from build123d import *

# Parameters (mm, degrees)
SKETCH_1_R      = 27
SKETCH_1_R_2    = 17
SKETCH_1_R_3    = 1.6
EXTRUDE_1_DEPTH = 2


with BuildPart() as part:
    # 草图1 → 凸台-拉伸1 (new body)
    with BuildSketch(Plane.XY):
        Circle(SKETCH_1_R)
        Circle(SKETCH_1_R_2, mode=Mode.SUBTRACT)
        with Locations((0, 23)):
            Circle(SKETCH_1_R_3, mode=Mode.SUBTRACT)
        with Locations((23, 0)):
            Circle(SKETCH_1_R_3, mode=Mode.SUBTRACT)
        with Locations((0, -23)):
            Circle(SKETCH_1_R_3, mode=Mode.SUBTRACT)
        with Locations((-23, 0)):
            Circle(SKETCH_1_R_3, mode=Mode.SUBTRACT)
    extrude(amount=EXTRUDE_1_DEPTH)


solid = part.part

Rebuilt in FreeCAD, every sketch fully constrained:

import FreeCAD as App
import Part
import Sketcher
from FreeCAD import Vector
Q = App.Units.Quantity

doc = App.newDocument("Part")
body = doc.addObject("PartDesign::Body", "Body")

# Sketch on XY plane
sketch1 = doc.addObject("Sketcher::SketchObject", "Sketch")
body.addObject(sketch1)
sketch1.AttachmentSupport = (doc.XY_Plane, [""])
sketch1.MapMode = "FlatFace"
sketch1.addGeometry(Part.Circle(Vector(0, 0, 0), Vector(0, 0, 1), 27), False)
sketch1.addGeometry(Part.Circle(Vector(0, -23, 0), Vector(0, 0, 1), 1.6), False)
sketch1.addGeometry(Part.Circle(Vector(-23, 0, 0), Vector(0, 0, 1), 1.6), False)
sketch1.addGeometry(Part.Circle(Vector(0, 0, 0), Vector(0, 0, 1), 17), False)
sketch1.addGeometry(Part.Circle(Vector(23, 0, 0), Vector(0, 0, 1), 1.6), False)
sketch1.addGeometry(Part.Circle(Vector(0, 23, 0), Vector(0, 0, 1), 1.6), False)
sketch1.addConstraint(Sketcher.Constraint("Coincident", 0, 3, -1, 1))
sketch1.addConstraint(Sketcher.Constraint("Coincident", 3, 3, -1, 1))
sketch1.addConstraint(Sketcher.Constraint("Equal", 1, 2))
sketch1.addConstraint(Sketcher.Constraint("Equal", 2, 4))
sketch1.addConstraint(Sketcher.Constraint("Equal", 4, 5))
sketch1.addConstraint(Sketcher.Constraint("Symmetric", 2, 3, 4, 3, -1, 1))
sketch1.addConstraint(Sketcher.Constraint("Symmetric", 1, 3, 5, 3, -1, 1))
sketch1.addConstraint(Sketcher.Constraint("PointOnObject", 1, 3, -2))
sketch1.addConstraint(Sketcher.Constraint("PointOnObject", 2, 3, -1))
sketch1.addConstraint(Sketcher.Constraint("Diameter", 0, Q("54 mm")))
sketch1.addConstraint(Sketcher.Constraint("Diameter", 3, Q("34 mm")))
sketch1.addConstraint(Sketcher.Constraint("Diameter", 1, Q("3.2 mm")))
sketch1.addConstraint(Sketcher.Constraint("DistanceY", 1, 3, -1, 1, Q("23 mm")))
sketch1.addConstraint(Sketcher.Constraint("DistanceX", 2, 3, -1, 1, Q("23 mm")))
pad1 = doc.addObject("PartDesign::Pad", "Pad")
body.addObject(pad1)
pad1.Profile = sketch1
pad1.Length = 2

doc.recompute()
